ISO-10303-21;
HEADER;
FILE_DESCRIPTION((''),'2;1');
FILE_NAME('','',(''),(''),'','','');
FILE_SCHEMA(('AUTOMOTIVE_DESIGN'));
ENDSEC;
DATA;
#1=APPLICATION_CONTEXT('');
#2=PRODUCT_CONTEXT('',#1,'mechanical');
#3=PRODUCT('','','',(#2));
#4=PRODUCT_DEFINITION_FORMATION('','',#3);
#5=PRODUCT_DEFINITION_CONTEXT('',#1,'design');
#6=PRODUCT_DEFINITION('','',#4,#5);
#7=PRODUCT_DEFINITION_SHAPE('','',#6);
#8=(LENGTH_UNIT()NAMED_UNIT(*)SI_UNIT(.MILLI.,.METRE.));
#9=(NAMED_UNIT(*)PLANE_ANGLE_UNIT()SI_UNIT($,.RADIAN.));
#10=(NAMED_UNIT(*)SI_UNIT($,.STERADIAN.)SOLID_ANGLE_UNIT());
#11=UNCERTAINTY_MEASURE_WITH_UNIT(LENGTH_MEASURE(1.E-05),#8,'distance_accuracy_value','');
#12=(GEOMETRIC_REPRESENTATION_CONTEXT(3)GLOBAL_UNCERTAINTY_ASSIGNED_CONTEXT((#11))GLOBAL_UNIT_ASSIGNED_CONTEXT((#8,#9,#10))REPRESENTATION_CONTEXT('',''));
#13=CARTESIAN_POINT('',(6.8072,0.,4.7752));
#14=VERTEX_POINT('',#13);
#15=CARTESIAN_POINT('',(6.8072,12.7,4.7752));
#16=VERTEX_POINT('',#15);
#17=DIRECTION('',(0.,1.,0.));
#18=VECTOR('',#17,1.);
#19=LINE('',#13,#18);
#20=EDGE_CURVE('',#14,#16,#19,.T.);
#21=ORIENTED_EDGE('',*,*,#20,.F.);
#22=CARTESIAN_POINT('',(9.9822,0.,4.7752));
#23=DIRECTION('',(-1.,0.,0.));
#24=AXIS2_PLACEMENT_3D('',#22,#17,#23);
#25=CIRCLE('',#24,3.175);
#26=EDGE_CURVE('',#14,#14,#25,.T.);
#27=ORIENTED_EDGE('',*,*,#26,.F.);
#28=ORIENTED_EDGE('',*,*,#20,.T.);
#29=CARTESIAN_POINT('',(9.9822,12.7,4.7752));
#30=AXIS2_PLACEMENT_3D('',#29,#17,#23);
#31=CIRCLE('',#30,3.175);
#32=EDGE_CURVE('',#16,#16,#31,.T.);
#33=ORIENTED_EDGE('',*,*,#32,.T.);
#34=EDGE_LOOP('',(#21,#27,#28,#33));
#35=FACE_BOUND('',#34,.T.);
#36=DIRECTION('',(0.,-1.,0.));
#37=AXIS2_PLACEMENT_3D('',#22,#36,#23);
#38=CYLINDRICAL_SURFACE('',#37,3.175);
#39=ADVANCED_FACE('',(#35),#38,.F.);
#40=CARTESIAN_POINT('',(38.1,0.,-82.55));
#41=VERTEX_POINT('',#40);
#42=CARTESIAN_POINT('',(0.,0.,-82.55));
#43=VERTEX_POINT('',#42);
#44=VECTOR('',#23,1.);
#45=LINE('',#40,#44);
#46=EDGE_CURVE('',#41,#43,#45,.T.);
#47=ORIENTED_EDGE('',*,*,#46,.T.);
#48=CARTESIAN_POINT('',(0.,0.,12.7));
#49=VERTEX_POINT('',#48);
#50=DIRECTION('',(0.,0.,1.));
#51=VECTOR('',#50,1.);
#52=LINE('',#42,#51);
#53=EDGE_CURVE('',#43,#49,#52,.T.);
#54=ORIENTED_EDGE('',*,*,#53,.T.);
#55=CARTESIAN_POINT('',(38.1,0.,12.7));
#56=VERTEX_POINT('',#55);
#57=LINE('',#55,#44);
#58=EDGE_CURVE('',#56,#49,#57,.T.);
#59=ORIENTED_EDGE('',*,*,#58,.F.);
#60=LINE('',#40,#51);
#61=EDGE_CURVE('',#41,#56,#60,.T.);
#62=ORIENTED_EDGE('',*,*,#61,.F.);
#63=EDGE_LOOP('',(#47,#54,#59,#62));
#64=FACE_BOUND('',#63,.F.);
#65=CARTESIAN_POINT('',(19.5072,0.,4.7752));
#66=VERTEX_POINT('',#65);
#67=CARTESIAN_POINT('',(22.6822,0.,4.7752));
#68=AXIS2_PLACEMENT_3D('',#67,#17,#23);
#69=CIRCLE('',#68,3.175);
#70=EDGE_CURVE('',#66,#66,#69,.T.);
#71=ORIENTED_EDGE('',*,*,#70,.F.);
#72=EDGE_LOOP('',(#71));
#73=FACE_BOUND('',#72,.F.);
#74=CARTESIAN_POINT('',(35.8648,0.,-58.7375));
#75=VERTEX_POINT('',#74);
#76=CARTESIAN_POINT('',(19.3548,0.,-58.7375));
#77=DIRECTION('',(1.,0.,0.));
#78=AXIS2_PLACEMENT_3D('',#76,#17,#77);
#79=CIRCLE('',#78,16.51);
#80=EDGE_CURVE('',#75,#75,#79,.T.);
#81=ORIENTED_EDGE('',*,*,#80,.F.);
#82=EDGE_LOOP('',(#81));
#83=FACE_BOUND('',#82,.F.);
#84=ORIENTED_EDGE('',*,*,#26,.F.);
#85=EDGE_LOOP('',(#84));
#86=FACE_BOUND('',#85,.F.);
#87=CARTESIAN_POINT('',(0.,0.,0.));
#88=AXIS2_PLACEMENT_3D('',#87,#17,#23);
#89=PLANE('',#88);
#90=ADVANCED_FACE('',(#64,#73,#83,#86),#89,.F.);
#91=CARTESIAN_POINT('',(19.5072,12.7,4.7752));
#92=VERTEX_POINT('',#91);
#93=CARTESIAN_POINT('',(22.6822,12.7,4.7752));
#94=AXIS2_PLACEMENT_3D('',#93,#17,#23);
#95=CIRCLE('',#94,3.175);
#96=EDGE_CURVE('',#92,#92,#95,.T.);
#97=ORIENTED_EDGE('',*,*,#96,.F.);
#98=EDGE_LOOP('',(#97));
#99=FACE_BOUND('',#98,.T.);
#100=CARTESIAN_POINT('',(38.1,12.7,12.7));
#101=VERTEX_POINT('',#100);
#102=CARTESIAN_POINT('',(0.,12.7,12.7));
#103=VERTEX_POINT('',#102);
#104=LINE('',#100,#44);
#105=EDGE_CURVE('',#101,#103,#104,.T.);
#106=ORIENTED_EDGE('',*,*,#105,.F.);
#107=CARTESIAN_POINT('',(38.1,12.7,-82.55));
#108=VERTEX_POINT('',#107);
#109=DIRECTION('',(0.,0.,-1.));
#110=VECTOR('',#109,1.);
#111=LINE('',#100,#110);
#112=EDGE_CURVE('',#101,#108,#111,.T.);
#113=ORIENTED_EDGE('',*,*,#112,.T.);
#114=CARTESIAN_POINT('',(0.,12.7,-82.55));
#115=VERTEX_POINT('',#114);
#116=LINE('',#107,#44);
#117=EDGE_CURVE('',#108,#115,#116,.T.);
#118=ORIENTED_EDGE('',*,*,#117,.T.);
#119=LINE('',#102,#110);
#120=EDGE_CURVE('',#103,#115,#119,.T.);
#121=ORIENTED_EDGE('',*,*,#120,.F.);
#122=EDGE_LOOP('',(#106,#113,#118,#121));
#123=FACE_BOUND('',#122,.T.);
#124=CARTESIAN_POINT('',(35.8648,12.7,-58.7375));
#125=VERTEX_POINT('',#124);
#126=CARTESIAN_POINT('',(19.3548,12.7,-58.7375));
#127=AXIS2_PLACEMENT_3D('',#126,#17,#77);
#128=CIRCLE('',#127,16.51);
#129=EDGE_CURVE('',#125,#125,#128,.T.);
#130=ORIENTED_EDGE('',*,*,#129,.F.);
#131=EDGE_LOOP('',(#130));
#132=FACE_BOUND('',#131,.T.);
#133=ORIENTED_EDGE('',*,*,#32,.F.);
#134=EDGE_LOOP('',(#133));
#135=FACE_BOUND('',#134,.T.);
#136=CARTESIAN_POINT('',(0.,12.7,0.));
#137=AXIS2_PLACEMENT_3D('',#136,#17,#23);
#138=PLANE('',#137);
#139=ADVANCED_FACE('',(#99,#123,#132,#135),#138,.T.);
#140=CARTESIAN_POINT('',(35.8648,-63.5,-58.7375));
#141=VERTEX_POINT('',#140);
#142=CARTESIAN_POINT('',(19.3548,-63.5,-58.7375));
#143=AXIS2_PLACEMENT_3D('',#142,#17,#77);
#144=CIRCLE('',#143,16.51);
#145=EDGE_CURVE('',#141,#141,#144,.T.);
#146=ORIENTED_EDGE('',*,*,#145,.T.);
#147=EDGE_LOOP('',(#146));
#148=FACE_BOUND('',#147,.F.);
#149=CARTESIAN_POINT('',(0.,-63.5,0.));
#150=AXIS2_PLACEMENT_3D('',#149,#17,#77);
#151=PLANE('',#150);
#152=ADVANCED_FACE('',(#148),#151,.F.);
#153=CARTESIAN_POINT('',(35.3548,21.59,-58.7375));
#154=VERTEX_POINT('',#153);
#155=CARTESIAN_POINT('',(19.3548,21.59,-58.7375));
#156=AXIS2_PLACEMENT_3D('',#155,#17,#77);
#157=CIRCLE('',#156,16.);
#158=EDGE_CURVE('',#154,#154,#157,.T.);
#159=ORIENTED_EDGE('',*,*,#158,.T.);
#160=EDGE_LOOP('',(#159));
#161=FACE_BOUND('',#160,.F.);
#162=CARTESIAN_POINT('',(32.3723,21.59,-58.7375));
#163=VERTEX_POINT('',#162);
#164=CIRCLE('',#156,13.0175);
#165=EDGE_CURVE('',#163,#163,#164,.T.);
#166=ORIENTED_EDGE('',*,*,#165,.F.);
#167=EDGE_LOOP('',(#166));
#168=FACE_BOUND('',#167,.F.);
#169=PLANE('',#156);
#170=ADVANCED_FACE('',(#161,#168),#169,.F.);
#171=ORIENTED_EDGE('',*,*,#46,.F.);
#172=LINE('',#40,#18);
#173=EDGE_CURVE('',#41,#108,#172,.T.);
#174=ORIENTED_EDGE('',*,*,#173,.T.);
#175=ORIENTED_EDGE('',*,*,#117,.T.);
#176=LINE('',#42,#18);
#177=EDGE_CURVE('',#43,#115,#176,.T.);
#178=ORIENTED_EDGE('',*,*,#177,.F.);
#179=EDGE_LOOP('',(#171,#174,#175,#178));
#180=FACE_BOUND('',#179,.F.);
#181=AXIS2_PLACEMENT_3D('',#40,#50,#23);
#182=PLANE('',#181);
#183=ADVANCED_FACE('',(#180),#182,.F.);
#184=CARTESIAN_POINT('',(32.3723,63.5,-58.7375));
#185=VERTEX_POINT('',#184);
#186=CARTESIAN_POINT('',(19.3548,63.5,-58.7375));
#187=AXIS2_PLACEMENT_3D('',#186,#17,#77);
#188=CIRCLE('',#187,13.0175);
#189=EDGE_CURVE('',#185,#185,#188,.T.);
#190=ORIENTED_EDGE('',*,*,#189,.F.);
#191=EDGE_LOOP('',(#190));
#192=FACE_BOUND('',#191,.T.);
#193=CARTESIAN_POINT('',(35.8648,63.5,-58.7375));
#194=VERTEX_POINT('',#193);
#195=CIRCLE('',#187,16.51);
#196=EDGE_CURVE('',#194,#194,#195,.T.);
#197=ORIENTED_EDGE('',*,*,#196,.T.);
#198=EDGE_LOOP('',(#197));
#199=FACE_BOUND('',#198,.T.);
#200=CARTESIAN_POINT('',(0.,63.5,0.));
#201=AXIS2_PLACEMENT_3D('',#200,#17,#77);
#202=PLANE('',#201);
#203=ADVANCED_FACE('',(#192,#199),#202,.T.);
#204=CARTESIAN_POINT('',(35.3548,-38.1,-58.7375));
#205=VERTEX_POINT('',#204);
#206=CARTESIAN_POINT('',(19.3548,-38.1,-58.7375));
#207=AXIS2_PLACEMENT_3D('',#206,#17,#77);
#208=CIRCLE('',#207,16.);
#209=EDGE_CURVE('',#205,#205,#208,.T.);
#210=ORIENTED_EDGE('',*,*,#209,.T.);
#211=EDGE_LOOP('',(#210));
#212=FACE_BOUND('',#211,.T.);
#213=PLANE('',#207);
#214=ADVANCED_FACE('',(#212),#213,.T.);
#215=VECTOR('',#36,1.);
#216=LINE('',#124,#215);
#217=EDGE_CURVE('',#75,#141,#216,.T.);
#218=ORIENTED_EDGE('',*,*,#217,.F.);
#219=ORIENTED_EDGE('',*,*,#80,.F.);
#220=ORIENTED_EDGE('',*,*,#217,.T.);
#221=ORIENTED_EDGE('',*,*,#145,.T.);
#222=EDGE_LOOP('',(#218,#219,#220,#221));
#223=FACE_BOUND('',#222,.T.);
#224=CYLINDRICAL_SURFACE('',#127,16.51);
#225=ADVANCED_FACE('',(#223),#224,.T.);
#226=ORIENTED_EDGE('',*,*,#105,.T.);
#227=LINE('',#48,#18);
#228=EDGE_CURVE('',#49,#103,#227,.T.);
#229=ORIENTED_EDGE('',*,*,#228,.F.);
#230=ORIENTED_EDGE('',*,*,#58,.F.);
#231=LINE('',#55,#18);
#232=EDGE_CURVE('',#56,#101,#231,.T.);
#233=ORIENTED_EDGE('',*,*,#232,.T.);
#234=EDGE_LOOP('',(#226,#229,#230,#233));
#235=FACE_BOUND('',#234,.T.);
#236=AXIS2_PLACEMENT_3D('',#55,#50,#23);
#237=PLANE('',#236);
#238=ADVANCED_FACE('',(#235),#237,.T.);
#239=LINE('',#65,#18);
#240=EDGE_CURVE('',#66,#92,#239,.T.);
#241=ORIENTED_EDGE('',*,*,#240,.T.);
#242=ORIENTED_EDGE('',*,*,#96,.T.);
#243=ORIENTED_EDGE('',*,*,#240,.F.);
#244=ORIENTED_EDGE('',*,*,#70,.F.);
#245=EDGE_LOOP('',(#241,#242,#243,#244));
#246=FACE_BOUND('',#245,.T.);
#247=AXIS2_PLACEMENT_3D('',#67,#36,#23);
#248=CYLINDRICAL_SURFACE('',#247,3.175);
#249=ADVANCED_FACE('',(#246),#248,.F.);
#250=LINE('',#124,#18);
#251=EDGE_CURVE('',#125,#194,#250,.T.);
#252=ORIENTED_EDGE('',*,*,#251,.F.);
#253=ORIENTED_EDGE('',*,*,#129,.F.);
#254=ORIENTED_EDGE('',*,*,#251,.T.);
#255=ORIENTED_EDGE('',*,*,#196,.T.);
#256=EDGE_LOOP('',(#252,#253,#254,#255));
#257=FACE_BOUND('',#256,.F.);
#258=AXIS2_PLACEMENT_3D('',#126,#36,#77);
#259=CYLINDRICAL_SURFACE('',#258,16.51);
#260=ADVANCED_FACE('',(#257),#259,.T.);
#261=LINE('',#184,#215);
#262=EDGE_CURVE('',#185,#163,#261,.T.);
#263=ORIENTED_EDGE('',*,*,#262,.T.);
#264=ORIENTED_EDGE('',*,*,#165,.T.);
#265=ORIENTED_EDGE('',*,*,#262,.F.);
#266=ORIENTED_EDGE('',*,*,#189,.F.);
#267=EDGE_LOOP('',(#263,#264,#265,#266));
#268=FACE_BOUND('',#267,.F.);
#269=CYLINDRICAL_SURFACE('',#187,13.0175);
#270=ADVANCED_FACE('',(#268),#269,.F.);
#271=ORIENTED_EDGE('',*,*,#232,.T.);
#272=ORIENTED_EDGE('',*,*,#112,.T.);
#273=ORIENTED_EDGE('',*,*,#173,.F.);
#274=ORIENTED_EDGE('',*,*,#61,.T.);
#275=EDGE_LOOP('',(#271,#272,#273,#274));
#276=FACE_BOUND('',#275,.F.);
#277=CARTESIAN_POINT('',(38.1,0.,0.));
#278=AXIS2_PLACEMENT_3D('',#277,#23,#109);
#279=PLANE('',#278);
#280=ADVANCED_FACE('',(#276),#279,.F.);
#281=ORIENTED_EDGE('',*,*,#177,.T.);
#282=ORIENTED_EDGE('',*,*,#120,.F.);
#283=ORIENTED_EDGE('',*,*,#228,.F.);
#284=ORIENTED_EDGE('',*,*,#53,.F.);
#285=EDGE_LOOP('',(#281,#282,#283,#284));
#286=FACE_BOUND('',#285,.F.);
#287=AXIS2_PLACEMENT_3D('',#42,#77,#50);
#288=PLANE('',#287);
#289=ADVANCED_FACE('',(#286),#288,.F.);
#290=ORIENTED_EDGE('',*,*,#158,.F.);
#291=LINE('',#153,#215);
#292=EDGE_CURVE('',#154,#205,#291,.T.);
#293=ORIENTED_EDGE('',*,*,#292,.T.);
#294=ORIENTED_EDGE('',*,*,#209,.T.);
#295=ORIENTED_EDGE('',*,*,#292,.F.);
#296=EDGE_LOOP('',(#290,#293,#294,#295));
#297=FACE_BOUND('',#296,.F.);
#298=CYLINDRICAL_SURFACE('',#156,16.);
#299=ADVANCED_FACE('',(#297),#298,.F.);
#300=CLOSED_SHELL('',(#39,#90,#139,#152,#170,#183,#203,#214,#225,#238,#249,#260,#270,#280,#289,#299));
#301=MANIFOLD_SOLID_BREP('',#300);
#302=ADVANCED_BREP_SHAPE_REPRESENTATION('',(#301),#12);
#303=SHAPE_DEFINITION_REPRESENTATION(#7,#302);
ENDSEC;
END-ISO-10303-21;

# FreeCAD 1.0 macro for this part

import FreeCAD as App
import Part
import Sketcher
from FreeCAD import Vector
Q = App.Units.Quantity


def add_polygon(sketch, points):
    """Adds a closed chain of lines whose ends are joined by coincident constraints."""
    first, n = sketch.GeometryCount, len(points)
    for a, b in zip(points, points[1:] + points[:1]):
        sketch.addGeometry(Part.LineSegment(App.Vector(*a, 0), App.Vector(*b, 0)), False)
    for i in range(n):
        sketch.addConstraint(Sketcher.Constraint("Coincident", first + i, 2, first + (i + 1) % n, 1))

doc = App.newDocument("Part")
body = doc.addObject("PartDesign::Body", "Body")

# Sketch on XZ plane
sketch1 = body.newObject("Sketcher::SketchObject", "Sketch")
sketch1.AttachmentSupport = (doc.getObject("XZ_Plane"), [""])
sketch1.MapMode = "FlatFace"
add_polygon(sketch1, [(0, -82.55), (0, 12.7), (38.1, 12.7), (38.1, -82.55)])  # lines 0-3
sketch1.addGeometry(Part.Circle(Vector(9.9822, 4.7752, 0), Vector(0, 0, 1), 3.175), False)  # 4
sketch1.addGeometry(Part.Circle(Vector(22.6822, 4.7752, 0), Vector(0, 0, 1), 3.175), False)  # 5
sketch1.addConstraint(Sketcher.Constraint("Vertical", 0))
sketch1.addConstraint(Sketcher.Constraint("Horizontal", 1))
sketch1.addConstraint(Sketcher.Constraint("Vertical", 2))
sketch1.addConstraint(Sketcher.Constraint("Horizontal", 3))
sketch1.addConstraint(Sketcher.Constraint("Equal", 4, 5))
sketch1.addConstraint(Sketcher.Constraint("PointOnObject", 0, 2, -2))
sketch1.addConstraint(Sketcher.Constraint("Horizontal", 4, 3, 5, 3))
sketch1.addConstraint(Sketcher.Constraint("Diameter", 4, Q("0.25 in")))
sketch1.addConstraint(Sketcher.Constraint("DistanceX", 1, 1, 1, 2, Q("1.5 in")))
sketch1.addConstraint(Sketcher.Constraint("DistanceY", -1, 1, 0, 2, Q("0.5 in")))
sketch1.addConstraint(Sketcher.Constraint("DistanceX", 4, 3, 5, 3, Q("0.5 in")))
sketch1.addConstraint(Sketcher.Constraint("DistanceY", 2, 2, -1, 1, Q("3.25 in")))
sketch1.addConstraint(Sketcher.Constraint("DistanceY", 4, 3, 0, 2, Q("0.312 in")))
sketch1.addConstraint(Sketcher.Constraint("DistanceX", 5, 3, 1, 2, Q("0.607 in")))
pad1 = body.newObject("PartDesign::Pad", "Pad")
pad1.Profile = sketch1
pad1.Length = Q("0.5 in")
pad1.Reversed = True

# Sketch on XZ plane
sketch2 = body.newObject("Sketcher::SketchObject", "Sketch001")
sketch2.AttachmentSupport = (doc.getObject("XZ_Plane"), [""])
sketch2.MapMode = "FlatFace"
sketch2.AttachmentOffset = App.Placement(Vector(0, 0, -0.5 * 25.4), App.Rotation())
sketch2.addGeometry(Part.Circle(Vector(19.3548, -58.7375, 0), Vector(0, 0, 1), 16.51), False)
sketch2.addConstraint(Sketcher.Constraint("Diameter", 0, Q("1.3 in")))
sketch2.addConstraint(Sketcher.Constraint("DistanceX", -1, 1, 0, 3, Q("0.762 in")))
sketch2.addConstraint(Sketcher.Constraint("DistanceY", 0, 3, -1, 1, Q("2.3125 in")))
pad2 = body.newObject("PartDesign::Pad", "Pad001")
pad2.Profile = sketch2
pad2.Type = "TwoLengths"
pad2.Length = Q("2 in")
pad2.Length2 = Q("3 in")
pad2.Reversed = True

# Sketch on XZ plane
sketch3 = body.newObject("Sketcher::SketchObject", "Sketch002")
sketch3.AttachmentSupport = (doc.getObject("XZ_Plane"), [""])
sketch3.MapMode = "FlatFace"
sketch3.AttachmentOffset = App.Placement(Vector(0, 0, -2.5 * 25.4), App.Rotation())
sketch3.addGeometry(Part.Circle(Vector(19.3548, -58.7375, 0), Vector(0, 0, 1), 13.0175), False)
sketch3.addConstraint(Sketcher.Constraint("Diameter", 0, Q("1.025 in")))
sketch3.addConstraint(Sketcher.Constraint("DistanceX", -1, 1, 0, 3, Q("0.762 in")))
sketch3.addConstraint(Sketcher.Constraint("DistanceY", 0, 3, -1, 1, Q("2.3125 in")))
pocket1 = body.newObject("PartDesign::Pocket", "Pocket")
pocket1.Profile = sketch3
pocket1.Length = Q("1.65 in")
pocket1.Reversed = True

# Sketch on XZ plane
sketch4 = body.newObject("Sketcher::SketchObject", "Sketch003")
sketch4.AttachmentSupport = (doc.getObject("XZ_Plane"), [""])
sketch4.MapMode = "FlatFace"
sketch4.AttachmentOffset = App.Placement(Vector(0, 0, -0.85 * 25.4), App.Rotation())
sketch4.addGeometry(Part.Circle(Vector(19.3548, -58.7375, 0), Vector(0, 0, 1), 16), False)
sketch4.addConstraint(Sketcher.Constraint("Diameter", 0, Q("32 mm")))
sketch4.addConstraint(Sketcher.Constraint("DistanceX", -1, 1, 0, 3, Q("0.762 in")))
sketch4.addConstraint(Sketcher.Constraint("DistanceY", 0, 3, -1, 1, Q("2.3125 in")))
pocket2 = body.newObject("PartDesign::Pocket", "Pocket001")
pocket2.Profile = sketch4
pocket2.Length = Q("2.35 in")
pocket2.Reversed = True

doc.recompute()
